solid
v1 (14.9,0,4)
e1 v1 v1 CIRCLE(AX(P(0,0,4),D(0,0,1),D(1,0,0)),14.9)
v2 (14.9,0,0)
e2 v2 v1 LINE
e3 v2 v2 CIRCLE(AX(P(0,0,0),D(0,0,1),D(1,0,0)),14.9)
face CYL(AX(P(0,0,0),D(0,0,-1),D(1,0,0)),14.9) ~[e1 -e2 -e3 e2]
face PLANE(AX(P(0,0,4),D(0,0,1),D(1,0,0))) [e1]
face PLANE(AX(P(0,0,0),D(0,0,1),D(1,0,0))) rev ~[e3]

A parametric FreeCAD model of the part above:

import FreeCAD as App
import Part
import Sketcher
Q = App.Units.Quantity

doc = App.newDocument("Part")
body = doc.addObject("PartDesign::Body", "Body")

# Sketch on XY plane
sketch1 = doc.addObject("Sketcher::SketchObject", "Sketch")
body.addObject(sketch1)
sketch1.AttachmentSupport = (doc.XY_Plane, [""])
sketch1.MapMode = "FlatFace"
sketch1.addGeometry(Part.Circle(App.Vector(0, 0, 0), App.Vector(0, 0, 1), 15), False)
sketch1.addConstraint([
    Sketcher.Constraint("Coincident", 0, 3, -1, 1),
    Sketcher.Constraint("Diameter", 0, Q("29.8 mm")),
])
pad1 = doc.addObject("PartDesign::Pad", "Pad")
body.addObject(pad1)
pad1.Profile = sketch1
pad1.Length = 4

doc.recompute()
